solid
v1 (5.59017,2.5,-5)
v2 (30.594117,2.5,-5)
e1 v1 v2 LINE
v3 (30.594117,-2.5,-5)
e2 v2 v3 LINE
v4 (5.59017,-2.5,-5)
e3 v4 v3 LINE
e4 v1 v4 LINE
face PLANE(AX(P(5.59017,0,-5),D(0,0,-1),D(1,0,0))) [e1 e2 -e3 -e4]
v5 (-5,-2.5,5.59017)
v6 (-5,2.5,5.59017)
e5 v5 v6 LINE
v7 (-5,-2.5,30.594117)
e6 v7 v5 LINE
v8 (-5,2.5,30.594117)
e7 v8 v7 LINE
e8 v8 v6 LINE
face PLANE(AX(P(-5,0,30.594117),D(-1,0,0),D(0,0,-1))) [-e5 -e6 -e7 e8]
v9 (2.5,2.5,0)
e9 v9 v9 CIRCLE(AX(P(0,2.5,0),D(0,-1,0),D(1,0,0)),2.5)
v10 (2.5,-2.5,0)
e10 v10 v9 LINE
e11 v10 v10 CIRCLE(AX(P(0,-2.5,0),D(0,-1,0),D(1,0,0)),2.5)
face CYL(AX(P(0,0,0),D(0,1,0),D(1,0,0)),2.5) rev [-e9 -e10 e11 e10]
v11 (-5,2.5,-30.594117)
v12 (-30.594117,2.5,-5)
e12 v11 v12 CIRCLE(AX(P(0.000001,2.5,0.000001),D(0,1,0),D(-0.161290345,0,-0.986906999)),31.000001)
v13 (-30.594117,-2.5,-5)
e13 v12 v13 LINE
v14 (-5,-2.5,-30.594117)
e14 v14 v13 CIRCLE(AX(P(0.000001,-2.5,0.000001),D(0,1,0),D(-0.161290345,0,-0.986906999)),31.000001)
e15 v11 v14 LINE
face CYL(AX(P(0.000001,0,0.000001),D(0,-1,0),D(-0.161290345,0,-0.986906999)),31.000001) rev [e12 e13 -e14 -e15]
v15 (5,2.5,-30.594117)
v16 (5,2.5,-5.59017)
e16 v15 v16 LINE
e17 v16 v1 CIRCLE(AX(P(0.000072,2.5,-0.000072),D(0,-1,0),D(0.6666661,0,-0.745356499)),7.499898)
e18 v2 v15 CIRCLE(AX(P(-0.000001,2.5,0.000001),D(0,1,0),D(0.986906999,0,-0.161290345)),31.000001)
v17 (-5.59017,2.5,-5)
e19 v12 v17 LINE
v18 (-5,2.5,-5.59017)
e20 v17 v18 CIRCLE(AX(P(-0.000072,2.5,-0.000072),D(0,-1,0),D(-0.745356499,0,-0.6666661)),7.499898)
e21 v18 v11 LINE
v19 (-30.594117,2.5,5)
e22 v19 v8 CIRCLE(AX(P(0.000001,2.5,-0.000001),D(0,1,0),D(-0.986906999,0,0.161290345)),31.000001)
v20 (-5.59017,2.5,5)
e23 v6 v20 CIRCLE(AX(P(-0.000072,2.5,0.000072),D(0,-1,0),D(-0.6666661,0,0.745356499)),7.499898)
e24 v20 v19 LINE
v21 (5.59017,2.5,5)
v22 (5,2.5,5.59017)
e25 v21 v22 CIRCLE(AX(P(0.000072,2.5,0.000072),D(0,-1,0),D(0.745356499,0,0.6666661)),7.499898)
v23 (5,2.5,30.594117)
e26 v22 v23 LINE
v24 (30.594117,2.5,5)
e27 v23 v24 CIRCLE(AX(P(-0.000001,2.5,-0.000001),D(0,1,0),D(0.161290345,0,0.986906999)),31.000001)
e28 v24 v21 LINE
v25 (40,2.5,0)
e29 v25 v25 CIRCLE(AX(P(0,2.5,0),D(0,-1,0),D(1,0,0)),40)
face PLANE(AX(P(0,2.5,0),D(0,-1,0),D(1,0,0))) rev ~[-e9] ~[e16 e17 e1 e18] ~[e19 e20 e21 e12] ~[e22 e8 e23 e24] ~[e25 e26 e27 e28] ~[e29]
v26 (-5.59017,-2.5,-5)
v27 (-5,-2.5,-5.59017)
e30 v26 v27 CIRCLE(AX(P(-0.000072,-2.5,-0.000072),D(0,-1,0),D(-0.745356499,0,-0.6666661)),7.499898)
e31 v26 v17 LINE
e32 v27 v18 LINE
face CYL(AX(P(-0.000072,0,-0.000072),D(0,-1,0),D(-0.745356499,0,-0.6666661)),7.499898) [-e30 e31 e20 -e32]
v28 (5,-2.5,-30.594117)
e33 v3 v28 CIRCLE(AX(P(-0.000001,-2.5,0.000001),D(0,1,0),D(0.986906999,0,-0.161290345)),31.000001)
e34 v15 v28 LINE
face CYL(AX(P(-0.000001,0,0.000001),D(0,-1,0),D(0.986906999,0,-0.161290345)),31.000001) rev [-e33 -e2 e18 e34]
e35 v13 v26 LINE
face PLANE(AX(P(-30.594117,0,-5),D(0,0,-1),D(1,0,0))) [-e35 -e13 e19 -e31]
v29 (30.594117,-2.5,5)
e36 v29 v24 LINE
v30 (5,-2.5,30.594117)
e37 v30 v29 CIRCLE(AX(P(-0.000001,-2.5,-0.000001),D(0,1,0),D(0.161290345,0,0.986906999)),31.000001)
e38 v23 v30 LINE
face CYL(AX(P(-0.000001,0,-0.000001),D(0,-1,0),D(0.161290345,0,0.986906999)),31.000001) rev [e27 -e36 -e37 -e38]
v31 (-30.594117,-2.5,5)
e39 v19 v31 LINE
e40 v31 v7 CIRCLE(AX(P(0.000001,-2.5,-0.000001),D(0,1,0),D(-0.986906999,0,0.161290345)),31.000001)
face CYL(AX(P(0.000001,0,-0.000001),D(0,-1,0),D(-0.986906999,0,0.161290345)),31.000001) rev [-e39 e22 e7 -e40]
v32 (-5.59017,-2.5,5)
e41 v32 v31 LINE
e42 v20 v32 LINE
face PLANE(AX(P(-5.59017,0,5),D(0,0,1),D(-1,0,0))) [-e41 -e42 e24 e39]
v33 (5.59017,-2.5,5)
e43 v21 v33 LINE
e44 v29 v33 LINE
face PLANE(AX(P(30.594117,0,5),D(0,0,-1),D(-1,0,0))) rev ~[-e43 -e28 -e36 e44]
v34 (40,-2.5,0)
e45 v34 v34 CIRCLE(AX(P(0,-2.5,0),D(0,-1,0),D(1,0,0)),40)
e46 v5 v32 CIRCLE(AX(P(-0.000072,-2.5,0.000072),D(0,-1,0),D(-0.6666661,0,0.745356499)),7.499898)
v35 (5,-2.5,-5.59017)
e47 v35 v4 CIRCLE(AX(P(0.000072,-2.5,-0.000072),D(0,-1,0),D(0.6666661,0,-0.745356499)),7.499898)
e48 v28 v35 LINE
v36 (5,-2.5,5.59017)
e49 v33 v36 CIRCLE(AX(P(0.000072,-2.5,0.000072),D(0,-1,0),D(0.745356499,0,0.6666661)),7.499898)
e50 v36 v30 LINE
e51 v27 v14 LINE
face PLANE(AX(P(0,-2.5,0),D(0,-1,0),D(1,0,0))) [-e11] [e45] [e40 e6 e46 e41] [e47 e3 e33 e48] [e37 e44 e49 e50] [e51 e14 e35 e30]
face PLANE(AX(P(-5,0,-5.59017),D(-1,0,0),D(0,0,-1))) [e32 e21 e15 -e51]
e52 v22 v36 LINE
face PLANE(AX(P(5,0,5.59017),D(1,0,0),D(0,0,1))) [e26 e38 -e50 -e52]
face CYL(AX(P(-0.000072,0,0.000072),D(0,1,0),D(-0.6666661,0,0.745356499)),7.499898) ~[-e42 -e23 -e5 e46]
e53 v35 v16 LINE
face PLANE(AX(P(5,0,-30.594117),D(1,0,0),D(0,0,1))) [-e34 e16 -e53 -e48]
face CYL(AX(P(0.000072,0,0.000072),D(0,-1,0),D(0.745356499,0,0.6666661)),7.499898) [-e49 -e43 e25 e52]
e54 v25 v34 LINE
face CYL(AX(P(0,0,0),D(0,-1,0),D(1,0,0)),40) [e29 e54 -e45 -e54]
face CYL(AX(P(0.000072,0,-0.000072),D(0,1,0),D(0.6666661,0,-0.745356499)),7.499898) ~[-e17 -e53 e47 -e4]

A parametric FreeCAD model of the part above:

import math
import FreeCAD as App
import Part
import Sketcher
from FreeCAD import Vector

doc = App.newDocument("Part")
body = doc.addObject("PartDesign::Body", "Body")

# Sketch on XZ plane
sketch1 = body.newObject("Sketcher::SketchObject", "Sketch")
sketch1.AttachmentSupport = (doc.getObject("XZ_Plane"), [""])
sketch1.MapMode = "FlatFace"
sketch1.addGeometry([
    Part.Circle(Vector(0, 0, 0), Vector(0, 0, 1), 40),  # 0
    Part.LineSegment(Vector(-5, -5.59017, 0), Vector(-5, -30.594117, 0)),  # 1
    Part.ArcOfCircle(Part.Circle(Vector(0.000001, 0.000001, 0), Vector(0, 0, 1), 31.000001), math.radians(-170.7182), math.radians(-99.2818)),  # 2
    Part.LineSegment(Vector(-30.594117, -5, 0), Vector(-5.59017, -5, 0)),  # 3
    Part.ArcOfCircle(Part.Circle(Vector(-0.000072, -0.000072, 0), Vector(0, 0, 1), 7.499898), math.radians(-138.189729), math.radians(-131.810271)),  # 4
    Part.Circle(Vector(0, 0, 0), Vector(0, 0, 1), 2.5),  # 5
    Part.ArcOfCircle(Part.Circle(Vector(-0.000001, 0.000001, 0), Vector(0, 0, 1), 31.000001), math.radians(-80.7182), math.radians(-9.2818)),  # 6
    Part.LineSegment(Vector(5, -30.594117, 0), Vector(5, -5.59017, 0)),  # 7
    Part.ArcOfCircle(Part.Circle(Vector(0.000072, -0.000072, 0), Vector(0, 0, 1), 7.499898), math.radians(-48.189729), math.radians(-41.810271)),  # 8
    Part.LineSegment(Vector(5.59017, -5, 0), Vector(30.594117, -5, 0)),  # 9
    Part.ArcOfCircle(Part.Circle(Vector(0.000001, -0.000001, 0), Vector(0, 0, 1), 31.000001), math.radians(99.2818), math.radians(170.7182)),  # 10
    Part.LineSegment(Vector(-5, 30.594117, 0), Vector(-5, 5.59017, 0)),  # 11
    Part.ArcOfCircle(Part.Circle(Vector(-0.000072, 0.000072, 0), Vector(0, 0, 1), 7.499898), math.radians(131.810271), math.radians(138.189729)),  # 12
    Part.LineSegment(Vector(-5.59017, 5, 0), Vector(-30.594117, 5, 0)),  # 13
    Part.ArcOfCircle(Part.Circle(Vector(-0.000001, -0.000001, 0), Vector(0, 0, 1), 31.000001), math.radians(9.2818), math.radians(80.7182)),  # 14
    Part.LineSegment(Vector(30.594117, 5, 0), Vector(5.59017, 5, 0)),  # 15
    Part.ArcOfCircle(Part.Circle(Vector(0.000072, 0.000072, 0), Vector(0, 0, 1), 7.499898), math.radians(41.810271), math.radians(48.189729)),  # 16
    Part.LineSegment(Vector(5, 5.59017, 0), Vector(5, 30.594117, 0)),  # 17
], False)
sketch1.addConstraint([
    Sketcher.Constraint("Coincident", 1, 2, 2, 2),
    Sketcher.Constraint("Coincident", 2, 1, 3, 1),
    Sketcher.Constraint("Coincident", 3, 2, 4, 1),
    Sketcher.Constraint("Coincident", 4, 2, 1, 1),
    Sketcher.Constraint("Coincident", 6, 1, 7, 1),
    Sketcher.Constraint("Coincident", 7, 2, 8, 1),
    Sketcher.Constraint("Coincident", 8, 2, 9, 1),
    Sketcher.Constraint("Coincident", 9, 2, 6, 2),
    Sketcher.Constraint("Coincident", 10, 1, 11, 1),
    Sketcher.Constraint("Coincident", 11, 2, 12, 1),
    Sketcher.Constraint("Coincident", 12, 2, 13, 1),
    Sketcher.Constraint("Coincident", 13, 2, 10, 2),
    Sketcher.Constraint("Coincident", 14, 1, 15, 1),
    Sketcher.Constraint("Coincident", 15, 2, 16, 1),
    Sketcher.Constraint("Coincident", 16, 2, 17, 1),
    Sketcher.Constraint("Coincident", 17, 2, 14, 2),
    Sketcher.Constraint("Vertical", 1),
    Sketcher.Constraint("Horizontal", 3),
    Sketcher.Constraint("Vertical", 7),
    Sketcher.Constraint("Horizontal", 9),
    Sketcher.Constraint("Vertical", 11),
    Sketcher.Constraint("Horizontal", 13),
    Sketcher.Constraint("Horizontal", 15),
    Sketcher.Constraint("Vertical", 17),
    Sketcher.Constraint("Coincident", 0, 3, -1, 1),
    Sketcher.Constraint("Coincident", 2, 3, -1, 1),
    Sketcher.Constraint("Coincident", 5, 3, -1, 1),
    Sketcher.Constraint("Coincident", 6, 3, -1, 1),
    Sketcher.Constraint("Coincident", 10, 3, -1, 1),
    Sketcher.Constraint("Coincident", 14, 3, -1, 1),
    Sketcher.Constraint("Equal", 2, 6),
    Sketcher.Constraint("Equal", 4, 8),
    Sketcher.Constraint("Equal", 6, 10),
    Sketcher.Constraint("Equal", 8, 12),
    Sketcher.Constraint("Equal", 10, 14),
    Sketcher.Constraint("Equal", 12, 16),
    Sketcher.Constraint("Symmetric", 8, 3, 12, 3, -1, 1),
    Sketcher.Constraint("Symmetric", 4, 3, 16, 3, -1, 1),
    Sketcher.Constraint("Symmetric", 4, 3, 8, 3, -2),
    Sketcher.Constraint("Horizontal", 1, 2, 6, 1),
    Sketcher.Constraint("Horizontal", 3, 2, 8, 2),
    Sketcher.Constraint("Horizontal", 13, 2, 14, 1),
    Sketcher.Constraint("Horizontal", 11, 2, 16, 2),
    Sketcher.Constraint("Vertical", 4, 2, 10, 1),
    Sketcher.Constraint("Vertical", 3, 2, 12, 2),
    Sketcher.Constraint("Equal", 15, 1),
    Sketcher.Constraint("Diameter", 0, 80.0),
    Sketcher.Constraint("Diameter", 5, 5.0),
    Sketcher.Constraint("Radius", 2, 31.000001),
    Sketcher.Constraint("DistanceX", 1, 2, -1, 1, 5.0),
    Sketcher.Constraint("DistanceY", 2, 1, -1, 1, 5.0),
    Sketcher.Constraint("Radius", 4, 7.499898),
    Sketcher.Constraint("DistanceX", 3, 2, 4, 3, 5.590098),
])
pad1 = body.newObject("PartDesign::Pad", "Pad")
pad1.Profile = sketch1
pad1.Length = 5
pad1.Midplane = True

doc.recompute()
